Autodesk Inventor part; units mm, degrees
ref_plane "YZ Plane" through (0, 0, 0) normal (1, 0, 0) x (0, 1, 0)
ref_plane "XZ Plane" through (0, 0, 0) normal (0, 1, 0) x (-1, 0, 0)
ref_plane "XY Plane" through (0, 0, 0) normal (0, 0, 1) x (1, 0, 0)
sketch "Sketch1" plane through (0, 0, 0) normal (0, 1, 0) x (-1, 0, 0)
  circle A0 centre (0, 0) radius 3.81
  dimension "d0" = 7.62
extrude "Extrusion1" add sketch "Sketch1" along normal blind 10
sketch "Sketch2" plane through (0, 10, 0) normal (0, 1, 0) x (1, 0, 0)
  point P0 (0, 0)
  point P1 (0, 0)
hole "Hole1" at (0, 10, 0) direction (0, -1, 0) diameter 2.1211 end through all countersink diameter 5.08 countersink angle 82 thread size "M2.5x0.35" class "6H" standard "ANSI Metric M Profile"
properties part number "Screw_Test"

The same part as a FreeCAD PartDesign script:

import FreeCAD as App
import Part
import Sketcher

V = App.Vector
Q = App.Units.Quantity

doc = App.newDocument("Part")
body = doc.addObject("PartDesign::Body", "Body")

# Sketch on XZ plane
sketch1 = body.newObject("Sketcher::SketchObject", "Sketch")
sketch1.AttachmentSupport = (doc.getObject("XZ_Plane"), [""])
sketch1.MapMode = "FlatFace"
sketch1.addGeometry(Part.Circle(V(0, 0, 0), V(0, 0, 1), 3.81), False)
sketch1.addConstraint([
    Sketcher.Constraint("Coincident", 0, 3, -1, 1),
    Sketcher.Constraint("Diameter", 0, Q("0.3 in")),
])
pad1 = body.newObject("PartDesign::Pad", "Pad")
pad1.Profile = sketch1
pad1.Length = Q("0.3937008 in")
pad1.Reversed = True

# Sketch on XZ plane
sketch2 = body.newObject("Sketcher::SketchObject", "Sketch001")
sketch2.AttachmentSupport = (doc.getObject("XZ_Plane"), [""])
sketch2.MapMode = "FlatFace"
sketch2.AttachmentOffset = App.Placement(V(0, 0, -0.3937008 * 25.4), App.Rotation())
sketch2.addGeometry(Part.Circle(V(0, 0, 0), V(0, 0, 1), 1.06055), False)
sketch2.addConstraint([
    Sketcher.Constraint("Coincident", 0, 3, -1, 1),
    Sketcher.Constraint("Diameter", 0, Q("0.0835 in")),
])
doc.recompute()
hole = body.newObject("PartDesign::Hole", "Hole")
hole.Profile = sketch2
hole.ThreadType = "None"
hole.Diameter = Q("0.0835079 in")
hole.DepthType = "ThroughAll"
hole.HoleCutType = "Countersink"
hole.HoleCutDiameter = Q("0.2 in")
hole.HoleCutCountersinkAngle = 82
hole.Reversed = True

doc.recompute()
